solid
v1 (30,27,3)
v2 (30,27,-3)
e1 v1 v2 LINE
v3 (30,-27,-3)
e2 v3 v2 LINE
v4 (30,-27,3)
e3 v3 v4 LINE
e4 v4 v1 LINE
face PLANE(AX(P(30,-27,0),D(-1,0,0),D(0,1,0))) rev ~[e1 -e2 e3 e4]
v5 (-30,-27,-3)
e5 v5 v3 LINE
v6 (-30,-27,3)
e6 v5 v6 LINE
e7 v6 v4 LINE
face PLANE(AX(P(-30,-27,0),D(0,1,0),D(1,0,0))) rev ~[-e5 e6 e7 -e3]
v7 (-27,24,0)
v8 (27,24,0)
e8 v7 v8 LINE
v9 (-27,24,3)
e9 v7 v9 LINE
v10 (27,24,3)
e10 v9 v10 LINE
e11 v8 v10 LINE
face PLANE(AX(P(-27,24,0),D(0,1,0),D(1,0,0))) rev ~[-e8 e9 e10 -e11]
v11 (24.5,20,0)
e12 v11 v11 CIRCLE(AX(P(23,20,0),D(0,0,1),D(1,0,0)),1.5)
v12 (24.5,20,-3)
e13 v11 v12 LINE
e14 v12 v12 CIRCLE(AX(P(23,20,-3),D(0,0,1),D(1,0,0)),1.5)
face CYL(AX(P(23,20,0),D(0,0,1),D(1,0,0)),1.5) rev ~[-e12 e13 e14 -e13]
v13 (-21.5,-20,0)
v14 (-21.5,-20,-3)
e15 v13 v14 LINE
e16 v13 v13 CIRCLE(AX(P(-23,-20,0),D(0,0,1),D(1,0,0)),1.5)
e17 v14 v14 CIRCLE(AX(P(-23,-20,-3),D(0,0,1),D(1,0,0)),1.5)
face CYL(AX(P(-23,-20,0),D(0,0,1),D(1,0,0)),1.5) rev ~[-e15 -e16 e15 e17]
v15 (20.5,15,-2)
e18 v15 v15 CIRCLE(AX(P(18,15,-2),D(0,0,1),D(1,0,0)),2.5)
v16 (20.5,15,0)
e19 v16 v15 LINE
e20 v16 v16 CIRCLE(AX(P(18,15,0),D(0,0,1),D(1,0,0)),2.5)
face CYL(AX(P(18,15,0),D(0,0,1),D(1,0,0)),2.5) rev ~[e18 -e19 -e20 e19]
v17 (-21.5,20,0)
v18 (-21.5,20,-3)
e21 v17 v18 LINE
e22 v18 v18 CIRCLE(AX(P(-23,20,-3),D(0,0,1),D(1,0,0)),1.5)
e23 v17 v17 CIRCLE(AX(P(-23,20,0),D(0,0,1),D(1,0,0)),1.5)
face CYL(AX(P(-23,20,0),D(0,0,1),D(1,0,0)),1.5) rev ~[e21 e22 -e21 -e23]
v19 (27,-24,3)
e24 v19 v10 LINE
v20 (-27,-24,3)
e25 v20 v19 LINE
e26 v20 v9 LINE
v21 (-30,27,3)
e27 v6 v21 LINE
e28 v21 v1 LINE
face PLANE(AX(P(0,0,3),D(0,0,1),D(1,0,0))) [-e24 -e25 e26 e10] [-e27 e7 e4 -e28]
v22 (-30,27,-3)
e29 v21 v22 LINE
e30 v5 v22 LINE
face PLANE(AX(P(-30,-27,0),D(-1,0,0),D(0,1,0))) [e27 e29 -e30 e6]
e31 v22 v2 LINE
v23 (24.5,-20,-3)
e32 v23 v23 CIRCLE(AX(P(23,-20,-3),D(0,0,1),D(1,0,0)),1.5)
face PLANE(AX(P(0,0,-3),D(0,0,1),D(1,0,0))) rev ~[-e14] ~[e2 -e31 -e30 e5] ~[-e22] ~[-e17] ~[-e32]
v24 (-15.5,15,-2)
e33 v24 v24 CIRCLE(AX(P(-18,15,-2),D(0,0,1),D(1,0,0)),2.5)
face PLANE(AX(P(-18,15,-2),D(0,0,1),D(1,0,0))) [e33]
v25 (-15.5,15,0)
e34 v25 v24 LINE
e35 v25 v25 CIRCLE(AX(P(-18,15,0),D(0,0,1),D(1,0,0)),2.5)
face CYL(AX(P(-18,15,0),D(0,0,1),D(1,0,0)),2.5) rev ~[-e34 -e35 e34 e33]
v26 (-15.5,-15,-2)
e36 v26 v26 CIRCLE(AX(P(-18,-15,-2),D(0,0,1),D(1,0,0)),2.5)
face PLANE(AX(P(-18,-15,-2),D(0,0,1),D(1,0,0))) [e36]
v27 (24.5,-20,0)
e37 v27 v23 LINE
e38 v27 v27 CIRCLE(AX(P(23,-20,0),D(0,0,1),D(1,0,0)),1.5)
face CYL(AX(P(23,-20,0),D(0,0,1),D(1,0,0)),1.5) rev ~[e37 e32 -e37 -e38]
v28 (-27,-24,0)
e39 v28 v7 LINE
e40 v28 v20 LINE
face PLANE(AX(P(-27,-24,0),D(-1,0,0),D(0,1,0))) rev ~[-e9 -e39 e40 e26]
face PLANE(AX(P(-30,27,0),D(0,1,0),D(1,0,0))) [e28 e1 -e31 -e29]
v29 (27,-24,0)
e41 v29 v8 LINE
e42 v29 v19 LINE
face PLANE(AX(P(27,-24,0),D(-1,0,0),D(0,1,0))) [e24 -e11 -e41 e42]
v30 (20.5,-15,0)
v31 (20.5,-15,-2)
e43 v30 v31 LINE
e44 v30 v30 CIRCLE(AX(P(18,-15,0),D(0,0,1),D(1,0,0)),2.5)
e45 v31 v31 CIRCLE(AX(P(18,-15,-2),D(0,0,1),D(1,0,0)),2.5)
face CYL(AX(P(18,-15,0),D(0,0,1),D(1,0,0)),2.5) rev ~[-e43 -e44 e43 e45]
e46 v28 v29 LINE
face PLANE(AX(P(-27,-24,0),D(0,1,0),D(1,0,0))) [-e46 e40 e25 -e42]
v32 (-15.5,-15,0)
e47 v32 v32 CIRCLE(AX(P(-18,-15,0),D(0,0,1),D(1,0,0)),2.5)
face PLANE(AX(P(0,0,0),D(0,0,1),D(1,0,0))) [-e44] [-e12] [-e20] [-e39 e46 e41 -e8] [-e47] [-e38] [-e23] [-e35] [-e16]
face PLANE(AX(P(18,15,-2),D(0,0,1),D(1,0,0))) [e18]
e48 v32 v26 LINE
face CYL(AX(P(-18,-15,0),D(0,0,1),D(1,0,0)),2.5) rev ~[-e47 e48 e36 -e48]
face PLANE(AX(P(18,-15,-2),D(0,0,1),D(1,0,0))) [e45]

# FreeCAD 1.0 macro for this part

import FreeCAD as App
import Part
import Sketcher
from FreeCAD import Vector
Q = App.Units.Quantity

doc = App.newDocument("Part")
body = doc.addObject("PartDesign::Body", "Body")

sketch1 = body.newObject("Sketcher::SketchObject", "Sketch")
sketch1.AttachmentSupport = (doc.getObject("XY_Plane"), [""])
sketch1.MapMode = "FlatFace"
sketch1.addGeometry(Part.LineSegment(Vector(-30, 27, 0), Vector(-30, -27, 0)), False)
sketch1.addGeometry(Part.LineSegment(Vector(-30, -27, 0), Vector(30, -27, 0)), False)
sketch1.addGeometry(Part.LineSegment(Vector(30, -27, 0), Vector(30, 27, 0)), False)
sketch1.addGeometry(Part.LineSegment(Vector(30, 27, 0), Vector(-30, 27, 0)), False)
sketch1.addConstraint(Sketcher.Constraint("Coincident", 0, 2, 1, 1))
sketch1.addConstraint(Sketcher.Constraint("Coincident", 1, 2, 2, 1))
sketch1.addConstraint(Sketcher.Constraint("Coincident", 2, 2, 3, 1))
sketch1.addConstraint(Sketcher.Constraint("Coincident", 3, 2, 0, 1))
sketch1.addConstraint(Sketcher.Constraint("Vertical", 0))
sketch1.addConstraint(Sketcher.Constraint("Horizontal", 1))
sketch1.addConstraint(Sketcher.Constraint("Vertical", 2))
sketch1.addConstraint(Sketcher.Constraint("Horizontal", 3))
sketch1.addConstraint(Sketcher.Constraint("Symmetric", 0, 2, 2, 2, -1, 1))
sketch1.addConstraint(Sketcher.Constraint("DistanceX", 1, 1, 1, 2, Q("60 mm")))
sketch1.addConstraint(Sketcher.Constraint("DistanceY", 0, 2, 0, 1, Q("54 mm")))
pad1 = body.newObject("PartDesign::Pad", "Pad")
pad1.Profile = sketch1
pad1.Length = 3
pad1.Reversed = True

sketch2 = body.newObject("Sketcher::SketchObject", "Sketch001")
sketch2.AttachmentSupport = (doc.getObject("XY_Plane"), [""])
sketch2.MapMode = "FlatFace"
sketch2.addGeometry(Part.LineSegment(Vector(-30, 27, 0), Vector(-30, -27, 0)), False)
sketch2.addGeometry(Part.LineSegment(Vector(-30, -27, 0), Vector(30, -27, 0)), False)
sketch2.addGeometry(Part.LineSegment(Vector(30, -27, 0), Vector(30, 27, 0)), False)
sketch2.addGeometry(Part.LineSegment(Vector(30, 27, 0), Vector(-30, 27, 0)), False)
sketch2.addGeometry(Part.LineSegment(Vector(27, -24, 0), Vector(-27, -24, 0)), False)
sketch2.addGeometry(Part.LineSegment(Vector(-27, -24, 0), Vector(-27, 24, 0)), False)
sketch2.addGeometry(Part.LineSegment(Vector(-27, 24, 0), Vector(27, 24, 0)), False)
sketch2.addGeometry(Part.LineSegment(Vector(27, 24, 0), Vector(27, -24, 0)), False)
sketch2.addConstraint(Sketcher.Constraint("Coincident", 0, 2, 1, 1))
sketch2.addConstraint(Sketcher.Constraint("Coincident", 1, 2, 2, 1))
sketch2.addConstraint(Sketcher.Constraint("Coincident", 2, 2, 3, 1))
sketch2.addConstraint(Sketcher.Constraint("Coincident", 3, 2, 0, 1))
sketch2.addConstraint(Sketcher.Constraint("Coincident", 4, 2, 5, 1))
sketch2.addConstraint(Sketcher.Constraint("Coincident", 5, 2, 6, 1))
sketch2.addConstraint(Sketcher.Constraint("Coincident", 6, 2, 7, 1))
sketch2.addConstraint(Sketcher.Constraint("Coincident", 7, 2, 4, 1))
sketch2.addConstraint(Sketcher.Constraint("Vertical", 0))
sketch2.addConstraint(Sketcher.Constraint("Horizontal", 1))
sketch2.addConstraint(Sketcher.Constraint("Vertical", 2))
sketch2.addConstraint(Sketcher.Constraint("Horizontal", 3))
sketch2.addConstraint(Sketcher.Constraint("Horizontal", 4))
sketch2.addConstraint(Sketcher.Constraint("Vertical", 5))
sketch2.addConstraint(Sketcher.Constraint("Horizontal", 6))
sketch2.addConstraint(Sketcher.Constraint("Vertical", 7))
sketch2.addConstraint(Sketcher.Constraint("Symmetric", 0, 2, 2, 2, -1, 1))
sketch2.addConstraint(Sketcher.Constraint("Symmetric", 4, 2, 6, 2, -1, 1))
sketch2.addConstraint(Sketcher.Constraint("Equal", 6, 0))
sketch2.addConstraint(Sketcher.Constraint("DistanceX", 1, 1, 1, 2, Q("60 mm")))
sketch2.addConstraint(Sketcher.Constraint("DistanceX", 4, 2, 4, 1, Q("54 mm")))
sketch2.addConstraint(Sketcher.Constraint("DistanceY", 5, 1, 5, 2, Q("48 mm")))
pad2 = body.newObject("PartDesign::Pad", "Pad001")
pad2.Profile = sketch2
pad2.Length = 3

sketch3 = body.newObject("Sketcher::SketchObject", "Sketch002")
sketch3.AttachmentSupport = (doc.getObject("XY_Plane"), [""])
sketch3.MapMode = "FlatFace"
sketch3.addGeometry(Part.Circle(Vector(-18, 15, 0), Vector(0, 0, 1), 2.5), False)
sketch3.addGeometry(Part.Circle(Vector(18, 15, 0), Vector(0, 0, 1), 2.5), False)
sketch3.addGeometry(Part.Circle(Vector(18, -15, 0), Vector(0, 0, 1), 2.5), False)
sketch3.addGeometry(Part.Circle(Vector(-18, -15, 0), Vector(0, 0, 1), 2.5), False)
sketch3.addConstraint(Sketcher.Constraint("Equal", 0, 1))
sketch3.addConstraint(Sketcher.Constraint("Equal", 1, 2))
sketch3.addConstraint(Sketcher.Constraint("Equal", 2, 3))
sketch3.addConstraint(Sketcher.Constraint("Symmetric", 0, 3, 2, 3, -1, 1))
sketch3.addConstraint(Sketcher.Constraint("Symmetric", 1, 3, 3, 3, -1, 1))
sketch3.addConstraint(Sketcher.Constraint("Symmetric", 0, 3, 1, 3, -2))
sketch3.addConstraint(Sketcher.Constraint("Diameter", 0, Q("5 mm")))
sketch3.addConstraint(Sketcher.Constraint("DistanceX", 0, 3, -1, 1, Q("18 mm")))
sketch3.addConstraint(Sketcher.Constraint("DistanceY", -1, 1, 0, 3, Q("15 mm")))
pocket1 = body.newObject("PartDesign::Pocket", "Pocket")
pocket1.Profile = sketch3
pocket1.Length = 2

sketch4 = body.newObject("Sketcher::SketchObject", "Sketch003")
sketch4.AttachmentSupport = (doc.getObject("XY_Plane"), [""])
sketch4.MapMode = "FlatFace"
sketch4.addGeometry(Part.Circle(Vector(-23, 20, 0), Vector(0, 0, 1), 1.5), False)
sketch4.addGeometry(Part.Circle(Vector(23, 20, 0), Vector(0, 0, 1), 1.5), False)
sketch4.addGeometry(Part.Circle(Vector(-23, -20, 0), Vector(0, 0, 1), 1.5), False)
sketch4.addGeometry(Part.Circle(Vector(23, -20, 0), Vector(0, 0, 1), 1.5), False)
sketch4.addConstraint(Sketcher.Constraint("Equal", 0, 1))
sketch4.addConstraint(Sketcher.Constraint("Equal", 1, 2))
sketch4.addConstraint(Sketcher.Constraint("Equal", 2, 3))
sketch4.addConstraint(Sketcher.Constraint("Symmetric", 1, 3, 2, 3, -1, 1))
sketch4.addConstraint(Sketcher.Constraint("Symmetric", 0, 3, 3, 3, -1, 1))
sketch4.addConstraint(Sketcher.Constraint("Symmetric", 0, 3, 1, 3, -2))
sketch4.addConstraint(Sketcher.Constraint("Diameter", 0, Q("3 mm")))
sketch4.addConstraint(Sketcher.Constraint("DistanceX", 0, 3, -1, 1, Q("23 mm")))
sketch4.addConstraint(Sketcher.Constraint("DistanceY", -1, 1, 0, 3, Q("20 mm")))
pocket2 = body.newObject("PartDesign::Pocket", "Pocket001")
pocket2.Profile = sketch4
pocket2.Type = "ThroughAll"

doc.recompute()
